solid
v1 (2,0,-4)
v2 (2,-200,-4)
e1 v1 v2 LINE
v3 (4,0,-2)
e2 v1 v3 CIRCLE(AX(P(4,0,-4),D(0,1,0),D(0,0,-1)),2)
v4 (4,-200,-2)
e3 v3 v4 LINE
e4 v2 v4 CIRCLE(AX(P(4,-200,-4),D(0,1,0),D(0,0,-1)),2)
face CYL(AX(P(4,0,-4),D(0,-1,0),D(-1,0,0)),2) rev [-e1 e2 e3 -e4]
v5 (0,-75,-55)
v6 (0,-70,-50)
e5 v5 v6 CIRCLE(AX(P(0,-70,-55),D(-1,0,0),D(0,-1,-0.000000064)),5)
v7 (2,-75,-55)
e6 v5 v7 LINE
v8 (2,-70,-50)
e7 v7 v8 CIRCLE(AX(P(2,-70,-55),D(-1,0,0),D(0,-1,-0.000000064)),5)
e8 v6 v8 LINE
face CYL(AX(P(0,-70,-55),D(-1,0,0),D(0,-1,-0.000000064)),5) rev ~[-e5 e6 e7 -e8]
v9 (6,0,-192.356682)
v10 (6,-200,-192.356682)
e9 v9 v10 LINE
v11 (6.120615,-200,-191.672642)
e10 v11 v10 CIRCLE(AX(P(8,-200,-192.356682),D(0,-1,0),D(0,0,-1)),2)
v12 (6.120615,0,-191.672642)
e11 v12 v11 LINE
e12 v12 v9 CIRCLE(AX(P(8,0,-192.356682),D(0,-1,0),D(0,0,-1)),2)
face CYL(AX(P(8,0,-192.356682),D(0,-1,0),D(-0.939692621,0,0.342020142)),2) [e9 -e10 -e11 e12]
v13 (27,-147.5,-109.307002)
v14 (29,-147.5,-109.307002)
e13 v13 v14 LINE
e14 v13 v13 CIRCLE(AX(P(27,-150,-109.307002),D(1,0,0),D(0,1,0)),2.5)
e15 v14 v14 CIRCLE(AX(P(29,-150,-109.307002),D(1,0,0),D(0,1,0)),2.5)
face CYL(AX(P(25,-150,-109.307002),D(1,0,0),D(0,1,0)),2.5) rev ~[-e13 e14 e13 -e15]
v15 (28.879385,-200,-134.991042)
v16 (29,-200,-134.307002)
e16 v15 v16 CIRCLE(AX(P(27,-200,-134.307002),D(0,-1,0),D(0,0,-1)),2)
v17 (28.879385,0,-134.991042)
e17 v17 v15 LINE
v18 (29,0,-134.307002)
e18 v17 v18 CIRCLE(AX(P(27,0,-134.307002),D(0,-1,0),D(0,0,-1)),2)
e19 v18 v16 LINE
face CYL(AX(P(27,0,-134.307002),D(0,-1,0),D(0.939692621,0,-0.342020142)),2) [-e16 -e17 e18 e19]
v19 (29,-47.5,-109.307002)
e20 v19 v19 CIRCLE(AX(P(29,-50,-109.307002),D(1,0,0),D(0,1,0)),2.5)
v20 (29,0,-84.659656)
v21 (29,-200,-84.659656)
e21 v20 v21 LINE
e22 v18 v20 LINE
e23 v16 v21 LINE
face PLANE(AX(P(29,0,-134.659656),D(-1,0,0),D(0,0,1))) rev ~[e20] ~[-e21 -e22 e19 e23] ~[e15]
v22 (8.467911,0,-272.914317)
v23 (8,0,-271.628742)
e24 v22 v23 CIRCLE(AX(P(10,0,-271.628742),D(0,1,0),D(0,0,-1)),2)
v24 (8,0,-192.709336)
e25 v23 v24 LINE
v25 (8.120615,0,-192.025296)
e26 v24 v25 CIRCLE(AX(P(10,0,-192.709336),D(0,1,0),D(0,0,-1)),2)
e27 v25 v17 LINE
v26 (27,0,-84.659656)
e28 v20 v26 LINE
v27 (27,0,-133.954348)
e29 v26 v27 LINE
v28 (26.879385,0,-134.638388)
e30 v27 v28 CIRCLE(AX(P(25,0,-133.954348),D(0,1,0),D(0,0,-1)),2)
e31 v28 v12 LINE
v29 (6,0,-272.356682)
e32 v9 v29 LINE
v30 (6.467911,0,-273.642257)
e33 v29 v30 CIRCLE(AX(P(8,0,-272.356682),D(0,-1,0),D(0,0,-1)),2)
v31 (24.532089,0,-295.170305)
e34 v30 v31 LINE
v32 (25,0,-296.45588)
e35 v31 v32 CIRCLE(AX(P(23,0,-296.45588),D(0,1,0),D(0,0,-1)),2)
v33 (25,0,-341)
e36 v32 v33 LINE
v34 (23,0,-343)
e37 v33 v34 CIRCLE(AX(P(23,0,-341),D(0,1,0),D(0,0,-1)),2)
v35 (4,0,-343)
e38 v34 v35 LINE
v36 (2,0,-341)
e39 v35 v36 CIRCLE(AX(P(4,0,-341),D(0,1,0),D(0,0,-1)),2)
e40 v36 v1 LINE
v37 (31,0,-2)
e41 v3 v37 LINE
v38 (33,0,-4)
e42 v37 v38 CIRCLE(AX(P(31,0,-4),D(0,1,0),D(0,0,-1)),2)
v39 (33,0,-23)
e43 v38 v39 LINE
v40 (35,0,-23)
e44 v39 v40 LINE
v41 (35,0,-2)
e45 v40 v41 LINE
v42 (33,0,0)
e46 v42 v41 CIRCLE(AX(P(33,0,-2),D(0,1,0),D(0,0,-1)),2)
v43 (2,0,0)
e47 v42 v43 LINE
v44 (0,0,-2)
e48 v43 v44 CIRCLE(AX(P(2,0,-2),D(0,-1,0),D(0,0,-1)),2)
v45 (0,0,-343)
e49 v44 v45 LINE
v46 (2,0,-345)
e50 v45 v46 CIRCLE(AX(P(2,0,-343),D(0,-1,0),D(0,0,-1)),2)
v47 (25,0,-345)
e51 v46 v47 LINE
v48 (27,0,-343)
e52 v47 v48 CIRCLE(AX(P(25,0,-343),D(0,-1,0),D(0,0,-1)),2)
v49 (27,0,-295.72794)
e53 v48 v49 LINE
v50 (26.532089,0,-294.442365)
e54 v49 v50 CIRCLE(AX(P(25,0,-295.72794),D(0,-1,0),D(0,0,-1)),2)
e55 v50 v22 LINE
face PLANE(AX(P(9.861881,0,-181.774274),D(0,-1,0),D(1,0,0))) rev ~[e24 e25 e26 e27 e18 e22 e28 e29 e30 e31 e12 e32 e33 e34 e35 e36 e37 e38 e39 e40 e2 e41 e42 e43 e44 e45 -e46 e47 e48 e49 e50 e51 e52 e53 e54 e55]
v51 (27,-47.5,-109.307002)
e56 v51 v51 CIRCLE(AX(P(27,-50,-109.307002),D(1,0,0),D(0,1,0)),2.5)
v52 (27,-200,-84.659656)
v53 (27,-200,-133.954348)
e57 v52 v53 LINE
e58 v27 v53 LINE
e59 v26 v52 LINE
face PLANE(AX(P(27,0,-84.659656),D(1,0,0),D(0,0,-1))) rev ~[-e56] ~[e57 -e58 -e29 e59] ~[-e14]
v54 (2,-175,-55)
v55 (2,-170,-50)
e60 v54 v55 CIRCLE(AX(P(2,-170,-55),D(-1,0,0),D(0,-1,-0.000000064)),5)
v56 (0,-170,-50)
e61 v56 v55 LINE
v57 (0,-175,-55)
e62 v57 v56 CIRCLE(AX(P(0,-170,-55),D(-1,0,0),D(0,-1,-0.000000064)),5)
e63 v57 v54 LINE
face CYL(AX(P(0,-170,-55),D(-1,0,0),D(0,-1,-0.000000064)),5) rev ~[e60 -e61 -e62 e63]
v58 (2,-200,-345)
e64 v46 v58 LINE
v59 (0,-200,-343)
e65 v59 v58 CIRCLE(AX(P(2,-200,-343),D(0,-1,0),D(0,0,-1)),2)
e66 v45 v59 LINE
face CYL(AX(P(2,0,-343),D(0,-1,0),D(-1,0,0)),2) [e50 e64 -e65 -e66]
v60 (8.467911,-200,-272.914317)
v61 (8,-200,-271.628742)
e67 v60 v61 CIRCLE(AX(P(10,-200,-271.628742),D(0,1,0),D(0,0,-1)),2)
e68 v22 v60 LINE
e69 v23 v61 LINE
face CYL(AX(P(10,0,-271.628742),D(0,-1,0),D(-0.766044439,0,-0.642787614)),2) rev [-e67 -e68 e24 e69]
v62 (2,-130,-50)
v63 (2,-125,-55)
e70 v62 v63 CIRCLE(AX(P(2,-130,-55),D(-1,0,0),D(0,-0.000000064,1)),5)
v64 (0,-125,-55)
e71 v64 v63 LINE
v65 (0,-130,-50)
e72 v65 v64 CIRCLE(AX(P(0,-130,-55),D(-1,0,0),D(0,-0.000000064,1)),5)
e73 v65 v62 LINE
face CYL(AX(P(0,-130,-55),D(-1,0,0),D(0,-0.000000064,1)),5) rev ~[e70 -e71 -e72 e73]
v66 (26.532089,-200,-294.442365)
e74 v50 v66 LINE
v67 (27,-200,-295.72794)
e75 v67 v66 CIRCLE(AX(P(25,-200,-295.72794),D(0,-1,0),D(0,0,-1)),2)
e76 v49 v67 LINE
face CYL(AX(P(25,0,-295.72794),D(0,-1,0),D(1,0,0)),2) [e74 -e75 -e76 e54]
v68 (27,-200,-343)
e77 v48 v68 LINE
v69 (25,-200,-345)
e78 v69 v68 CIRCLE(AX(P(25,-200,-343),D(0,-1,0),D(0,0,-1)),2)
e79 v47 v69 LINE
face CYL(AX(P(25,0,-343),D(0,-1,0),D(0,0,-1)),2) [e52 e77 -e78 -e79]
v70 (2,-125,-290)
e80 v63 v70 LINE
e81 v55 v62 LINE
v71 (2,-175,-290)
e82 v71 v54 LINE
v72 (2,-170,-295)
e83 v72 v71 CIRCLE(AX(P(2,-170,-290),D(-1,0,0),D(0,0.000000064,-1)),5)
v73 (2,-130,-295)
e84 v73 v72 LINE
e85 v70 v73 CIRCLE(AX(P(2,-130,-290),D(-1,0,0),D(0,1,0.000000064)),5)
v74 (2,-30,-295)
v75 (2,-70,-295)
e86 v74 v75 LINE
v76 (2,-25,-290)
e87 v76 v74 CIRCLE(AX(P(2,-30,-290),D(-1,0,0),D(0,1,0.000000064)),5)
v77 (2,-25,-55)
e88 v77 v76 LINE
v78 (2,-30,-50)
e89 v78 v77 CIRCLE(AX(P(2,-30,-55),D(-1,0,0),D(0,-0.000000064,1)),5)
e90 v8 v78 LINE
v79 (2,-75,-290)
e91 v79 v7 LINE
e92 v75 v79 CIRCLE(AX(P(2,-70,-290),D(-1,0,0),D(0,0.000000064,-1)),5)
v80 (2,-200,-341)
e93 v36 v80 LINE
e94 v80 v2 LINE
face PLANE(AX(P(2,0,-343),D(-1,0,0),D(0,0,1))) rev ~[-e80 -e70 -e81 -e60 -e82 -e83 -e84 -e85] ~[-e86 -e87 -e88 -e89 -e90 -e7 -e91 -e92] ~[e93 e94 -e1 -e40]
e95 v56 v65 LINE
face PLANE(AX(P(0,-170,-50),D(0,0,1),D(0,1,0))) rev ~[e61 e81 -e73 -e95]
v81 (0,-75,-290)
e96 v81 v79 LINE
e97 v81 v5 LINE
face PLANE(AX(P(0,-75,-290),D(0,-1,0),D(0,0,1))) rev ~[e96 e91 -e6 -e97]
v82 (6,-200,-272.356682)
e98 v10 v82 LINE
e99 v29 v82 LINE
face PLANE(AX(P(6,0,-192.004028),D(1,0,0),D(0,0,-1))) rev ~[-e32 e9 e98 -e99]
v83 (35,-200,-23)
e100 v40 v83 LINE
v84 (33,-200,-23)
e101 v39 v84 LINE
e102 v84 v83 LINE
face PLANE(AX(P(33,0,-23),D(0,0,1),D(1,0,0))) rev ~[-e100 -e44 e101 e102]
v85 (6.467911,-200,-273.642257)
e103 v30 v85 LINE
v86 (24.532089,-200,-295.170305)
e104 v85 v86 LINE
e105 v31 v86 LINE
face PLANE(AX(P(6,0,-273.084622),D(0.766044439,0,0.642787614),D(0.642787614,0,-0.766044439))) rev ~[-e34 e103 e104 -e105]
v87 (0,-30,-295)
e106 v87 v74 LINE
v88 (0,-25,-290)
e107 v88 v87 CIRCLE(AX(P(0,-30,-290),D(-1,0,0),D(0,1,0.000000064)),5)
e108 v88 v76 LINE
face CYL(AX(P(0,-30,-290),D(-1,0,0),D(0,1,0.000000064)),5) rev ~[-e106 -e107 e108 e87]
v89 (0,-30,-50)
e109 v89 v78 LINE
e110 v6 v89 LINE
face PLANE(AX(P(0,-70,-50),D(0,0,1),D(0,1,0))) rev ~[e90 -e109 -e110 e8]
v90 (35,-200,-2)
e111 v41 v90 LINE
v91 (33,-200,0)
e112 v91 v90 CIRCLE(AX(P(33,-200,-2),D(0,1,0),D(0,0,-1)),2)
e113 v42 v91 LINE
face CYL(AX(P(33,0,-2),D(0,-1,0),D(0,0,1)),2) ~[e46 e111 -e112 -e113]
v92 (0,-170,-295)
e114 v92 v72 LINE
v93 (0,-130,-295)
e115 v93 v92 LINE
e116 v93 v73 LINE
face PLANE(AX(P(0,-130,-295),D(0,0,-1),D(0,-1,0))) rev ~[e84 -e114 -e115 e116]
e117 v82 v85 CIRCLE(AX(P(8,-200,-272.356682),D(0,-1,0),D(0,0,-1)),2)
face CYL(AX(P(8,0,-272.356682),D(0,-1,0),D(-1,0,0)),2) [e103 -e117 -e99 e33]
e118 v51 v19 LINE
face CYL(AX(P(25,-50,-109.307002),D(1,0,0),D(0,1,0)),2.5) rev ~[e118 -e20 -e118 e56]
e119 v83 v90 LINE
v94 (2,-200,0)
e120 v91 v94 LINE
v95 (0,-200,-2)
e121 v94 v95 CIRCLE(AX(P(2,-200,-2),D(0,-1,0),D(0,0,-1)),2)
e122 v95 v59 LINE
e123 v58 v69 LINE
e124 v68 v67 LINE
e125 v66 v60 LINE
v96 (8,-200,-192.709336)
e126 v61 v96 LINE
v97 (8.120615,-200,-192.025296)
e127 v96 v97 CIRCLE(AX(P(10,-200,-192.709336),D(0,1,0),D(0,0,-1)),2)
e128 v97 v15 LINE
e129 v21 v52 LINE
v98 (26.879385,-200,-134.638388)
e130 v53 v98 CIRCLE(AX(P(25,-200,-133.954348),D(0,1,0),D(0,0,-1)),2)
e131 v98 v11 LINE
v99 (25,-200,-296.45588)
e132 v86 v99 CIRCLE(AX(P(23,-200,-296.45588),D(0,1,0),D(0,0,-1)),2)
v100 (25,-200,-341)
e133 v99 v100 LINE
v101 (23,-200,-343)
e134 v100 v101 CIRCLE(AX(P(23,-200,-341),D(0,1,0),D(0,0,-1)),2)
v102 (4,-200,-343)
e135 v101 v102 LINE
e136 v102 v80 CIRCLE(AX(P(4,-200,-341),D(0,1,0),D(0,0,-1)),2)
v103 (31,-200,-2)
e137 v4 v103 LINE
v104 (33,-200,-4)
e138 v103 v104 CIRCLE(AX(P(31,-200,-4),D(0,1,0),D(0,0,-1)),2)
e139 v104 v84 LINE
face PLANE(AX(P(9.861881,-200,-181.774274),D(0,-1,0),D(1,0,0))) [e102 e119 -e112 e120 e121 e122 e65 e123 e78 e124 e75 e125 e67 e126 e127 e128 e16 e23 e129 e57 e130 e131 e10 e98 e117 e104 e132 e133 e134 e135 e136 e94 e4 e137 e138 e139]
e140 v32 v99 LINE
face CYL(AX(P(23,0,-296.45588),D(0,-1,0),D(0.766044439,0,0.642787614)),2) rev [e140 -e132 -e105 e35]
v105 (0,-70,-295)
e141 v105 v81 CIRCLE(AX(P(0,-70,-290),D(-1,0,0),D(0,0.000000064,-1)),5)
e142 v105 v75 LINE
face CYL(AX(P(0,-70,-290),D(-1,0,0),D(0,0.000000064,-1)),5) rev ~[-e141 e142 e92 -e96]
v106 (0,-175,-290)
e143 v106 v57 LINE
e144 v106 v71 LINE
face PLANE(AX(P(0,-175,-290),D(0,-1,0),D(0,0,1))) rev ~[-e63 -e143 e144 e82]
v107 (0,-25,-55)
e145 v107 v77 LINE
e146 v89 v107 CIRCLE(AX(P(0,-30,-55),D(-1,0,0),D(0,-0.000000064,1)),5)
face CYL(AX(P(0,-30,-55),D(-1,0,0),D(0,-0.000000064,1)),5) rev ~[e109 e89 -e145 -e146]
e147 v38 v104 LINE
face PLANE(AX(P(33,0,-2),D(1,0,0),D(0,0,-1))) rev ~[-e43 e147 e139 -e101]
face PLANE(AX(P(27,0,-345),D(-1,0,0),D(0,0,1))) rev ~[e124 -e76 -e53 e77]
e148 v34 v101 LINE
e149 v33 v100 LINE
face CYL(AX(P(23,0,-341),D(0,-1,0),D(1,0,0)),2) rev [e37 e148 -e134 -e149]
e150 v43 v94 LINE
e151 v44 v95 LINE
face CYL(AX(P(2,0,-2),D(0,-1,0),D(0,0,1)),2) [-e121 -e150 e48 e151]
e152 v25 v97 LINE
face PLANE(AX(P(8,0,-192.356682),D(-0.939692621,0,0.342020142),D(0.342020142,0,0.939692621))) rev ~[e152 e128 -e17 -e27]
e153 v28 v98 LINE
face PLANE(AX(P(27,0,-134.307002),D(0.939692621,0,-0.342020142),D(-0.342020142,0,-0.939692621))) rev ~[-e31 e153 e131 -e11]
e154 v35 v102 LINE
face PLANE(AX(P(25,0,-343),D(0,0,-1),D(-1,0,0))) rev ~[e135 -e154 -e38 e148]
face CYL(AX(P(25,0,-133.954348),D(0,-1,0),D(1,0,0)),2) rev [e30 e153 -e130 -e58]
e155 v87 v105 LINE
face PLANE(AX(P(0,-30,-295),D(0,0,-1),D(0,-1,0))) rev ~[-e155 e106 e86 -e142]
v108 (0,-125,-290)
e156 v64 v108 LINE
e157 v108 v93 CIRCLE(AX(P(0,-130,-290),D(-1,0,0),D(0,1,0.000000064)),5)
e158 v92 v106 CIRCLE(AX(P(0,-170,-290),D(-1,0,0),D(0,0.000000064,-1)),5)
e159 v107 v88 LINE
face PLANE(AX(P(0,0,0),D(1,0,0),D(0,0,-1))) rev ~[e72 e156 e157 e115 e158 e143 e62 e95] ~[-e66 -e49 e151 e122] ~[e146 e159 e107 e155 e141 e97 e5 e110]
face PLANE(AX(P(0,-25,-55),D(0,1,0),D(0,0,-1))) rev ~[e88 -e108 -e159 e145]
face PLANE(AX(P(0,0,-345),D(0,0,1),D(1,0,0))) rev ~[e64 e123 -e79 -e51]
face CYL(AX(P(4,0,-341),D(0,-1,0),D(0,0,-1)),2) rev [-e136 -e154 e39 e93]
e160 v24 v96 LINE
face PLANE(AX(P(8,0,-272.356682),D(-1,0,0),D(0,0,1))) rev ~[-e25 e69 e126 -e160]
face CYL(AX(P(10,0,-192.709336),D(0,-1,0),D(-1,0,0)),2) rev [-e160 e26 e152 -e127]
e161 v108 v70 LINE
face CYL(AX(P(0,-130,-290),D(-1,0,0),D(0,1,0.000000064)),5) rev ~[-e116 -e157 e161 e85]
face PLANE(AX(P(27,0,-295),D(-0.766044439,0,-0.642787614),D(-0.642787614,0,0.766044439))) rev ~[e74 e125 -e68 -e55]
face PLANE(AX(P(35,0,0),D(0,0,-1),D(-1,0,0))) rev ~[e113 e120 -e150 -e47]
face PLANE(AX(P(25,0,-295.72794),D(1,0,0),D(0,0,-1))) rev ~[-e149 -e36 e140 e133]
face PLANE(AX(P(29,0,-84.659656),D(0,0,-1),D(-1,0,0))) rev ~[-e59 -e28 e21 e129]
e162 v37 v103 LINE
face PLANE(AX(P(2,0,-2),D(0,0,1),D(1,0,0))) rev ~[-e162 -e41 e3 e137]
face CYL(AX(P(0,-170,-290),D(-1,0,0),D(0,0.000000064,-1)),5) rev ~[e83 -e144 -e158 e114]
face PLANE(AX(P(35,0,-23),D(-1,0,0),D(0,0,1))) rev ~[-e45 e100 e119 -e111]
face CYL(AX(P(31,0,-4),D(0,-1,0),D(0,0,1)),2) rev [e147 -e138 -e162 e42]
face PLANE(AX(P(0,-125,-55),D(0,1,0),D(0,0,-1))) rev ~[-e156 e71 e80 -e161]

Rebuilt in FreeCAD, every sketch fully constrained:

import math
import FreeCAD as App
import Part
import Sketcher
from FreeCAD import Vector
Q = App.Units.Quantity


def edges_at(feature, points):
    """Names of the edges that pass closest to the given points."""
    edges = feature.Shape.Edges
    near = lambda p: min(range(len(edges)), key=lambda i: edges[i].distToShape(Part.Vertex(*p))[0])
    return sorted({f"Edge{near(p) + 1}" for p in points})


def add_polygon(sketch, points):
    """Adds a closed chain of lines whose ends are joined by coincident constraints."""
    first, n = sketch.GeometryCount, len(points)
    for a, b in zip(points, points[1:] + points[:1]):
        sketch.addGeometry(Part.LineSegment(App.Vector(*a, 0), App.Vector(*b, 0)), False)
    for i in range(n):
        sketch.addConstraint(Sketcher.Constraint("Coincident", first + i, 2, first + (i + 1) % n, 1))

doc = App.newDocument("Part")
body = doc.addObject("PartDesign::Body", "Body")

sketch1 = doc.addObject("Sketcher::SketchObject", "Sketch")
body.addObject(sketch1)
sketch1.AttachmentSupport = (doc.XZ_Plane, [""])
sketch1.MapMode = "FlatFace"
add_polygon(sketch1, [(35, 0), (0, 0), (0, -345), (27, -345), (27, -295), (8, -272.4), (8, -192.4), (29, -134.7), (29, -84.7), (27, -84.7), (27, -134.3), (6, -192), (6, -273.1), (25, -295.7), (25, -343), (2, -343), (2, -2), (33, -2), (33, -23), (35, -23)])
sketch1.addConstraint(Sketcher.Constraint("Horizontal", 0))
sketch1.addConstraint(Sketcher.Constraint("Vertical", 1))
sketch1.addConstraint(Sketcher.Constraint("Horizontal", 2))
sketch1.addConstraint(Sketcher.Constraint("Vertical", 3))
sketch1.addConstraint(Sketcher.Constraint("Vertical", 5))
sketch1.addConstraint(Sketcher.Constraint("Vertical", 7))
sketch1.addConstraint(Sketcher.Constraint("Horizontal", 8))
sketch1.addConstraint(Sketcher.Constraint("Vertical", 9))
sketch1.addConstraint(Sketcher.Constraint("Vertical", 11))
sketch1.addConstraint(Sketcher.Constraint("Vertical", 13))
sketch1.addConstraint(Sketcher.Constraint("Horizontal", 14))
sketch1.addConstraint(Sketcher.Constraint("Vertical", 15))
sketch1.addConstraint(Sketcher.Constraint("Horizontal", 16))
sketch1.addConstraint(Sketcher.Constraint("Vertical", 17))
sketch1.addConstraint(Sketcher.Constraint("Horizontal", 18))
sketch1.addConstraint(Sketcher.Constraint("Vertical", 19))
sketch1.addConstraint(Sketcher.Constraint("Coincident", 0, 2, -1, 1))
sketch1.addConstraint(Sketcher.Constraint("Parallel", 6, 10))
sketch1.addConstraint(Sketcher.Constraint("Parallel", 4, 12))
sketch1.addConstraint(Sketcher.Constraint("Vertical", 3, 2, 8, 2))
sketch1.addConstraint(Sketcher.Constraint("Equal", 8, 18))
sketch1.addConstraint(Sketcher.Constraint("Equal", 3, 7))
sketch1.addConstraint(Sketcher.Constraint("Equal", 14, 19))
sketch1.addConstraint(Sketcher.Constraint("Equal", 6, 10))
sketch1.addConstraint(Sketcher.Constraint("Equal", 4, 12))
sketch1.addConstraint(Sketcher.Constraint("DistanceX", 0, 2, 0, 1, 35.0))
sketch1.addConstraint(Sketcher.Constraint("DistanceX", 2, 1, 2, 2, 27.0))
sketch1.addConstraint(Sketcher.Constraint("DistanceX", 8, 2, 8, 1, 2.0))
sketch1.addConstraint(Sketcher.Constraint("DistanceX", 14, 2, 14, 1, 23.0))
sketch1.addConstraint(Sketcher.Constraint("DistanceY", 1, 2, 1, 1, 345.0))
sketch1.addConstraint(Sketcher.Constraint("DistanceY", 3, 1, 3, 2, 50.0))
sketch1.addConstraint(Sketcher.Constraint("DistanceY", 5, 1, 5, 2, 80.0))
sketch1.addConstraint(Sketcher.Constraint("DistanceY", 15, 1, 15, 2, 341.0))
sketch1.addConstraint(Sketcher.Constraint("DistanceY", 17, 2, 17, 1, 21.0))
sketch1.addConstraint(Sketcher.Constraint("Angle", 4, Q("130 deg")))
sketch1.addConstraint(Sketcher.Constraint("Angle", 6, Q("70 deg")))
sketch1.addConstraint(Sketcher.Constraint("DistanceX", -1, 1, 4, 2, 8.0))
sketch1.addConstraint(Sketcher.Constraint("DistanceY", 13, 2, 13, 1, 47.27206))
sketch1.addConstraint(Sketcher.Constraint("DistanceY", 9, 2, 9, 1, 49.647346))
pad1 = doc.addObject("PartDesign::Pad", "Pad")
body.addObject(pad1)
pad1.Profile = sketch1
pad1.Length = 200
doc.recompute()

fillet = doc.addObject("PartDesign::Fillet", "Fillet")
body.addObject(fillet)
fillet.Base = (pad1, edges_at(pad1, [
    (0, -100, 0),
    (35, -100, 0),
    (33, -100, -2),
    (2, -100, -2),
    (0, -100, -345),
    (2, -100, -343),
    (27, -100, -345),
    (25, -100, -343),
    (25, -100, -295.728),
    (27, -100, -295),
    (8, -100, -272.357),
    (6, -100, -273.085),
    (6, -100, -192.004),
    (8, -100, -192.357),
    (29, -100, -134.66),
    (27, -100, -134.307),
]))
fillet.Radius = 2

sketch2 = doc.addObject("Sketcher::SketchObject", "Sketch001")
body.addObject(sketch2)
sketch2.AttachmentSupport = (doc.YZ_Plane, [""])
sketch2.MapMode = "FlatFace"
sketch2.addGeometry(Part.LineSegment(Vector(-70, -50, 0), Vector(-30, -50, 0)), False)
sketch2.addGeometry(Part.ArcOfCircle(Part.Circle(Vector(-30, -55, 0), Vector(0, 0, 1), 5), math.radians(0), math.radians(90)), False)
sketch2.addGeometry(Part.LineSegment(Vector(-25, -55, 0), Vector(-25, -290, 0)), False)
sketch2.addGeometry(Part.ArcOfCircle(Part.Circle(Vector(-30, -290, 0), Vector(0, 0, 1), 5), math.radians(-90), math.radians(0)), False)
sketch2.addGeometry(Part.LineSegment(Vector(-30, -295, 0), Vector(-70, -295, 0)), False)
sketch2.addGeometry(Part.ArcOfCircle(Part.Circle(Vector(-70, -290, 0), Vector(0, 0, 1), 5), math.radians(180), math.radians(270)), False)
sketch2.addGeometry(Part.LineSegment(Vector(-75, -290, 0), Vector(-75, -55, 0)), False)
sketch2.addGeometry(Part.ArcOfCircle(Part.Circle(Vector(-70, -55, 0), Vector(0, 0, 1), 5), math.radians(90), math.radians(180)), False)
sketch2.addGeometry(Part.ArcOfCircle(Part.Circle(Vector(-130, -55, 0), Vector(0, 0, 1), 5), math.radians(0), math.radians(90)), False)
sketch2.addGeometry(Part.LineSegment(Vector(-125, -55, 0), Vector(-125, -290, 0)), False)
sketch2.addGeometry(Part.ArcOfCircle(Part.Circle(Vector(-130, -290, 0), Vector(0, 0, 1), 5), math.radians(-90), math.radians(0)), False)
sketch2.addGeometry(Part.LineSegment(Vector(-130, -295, 0), Vector(-170, -295, 0)), False)
sketch2.addGeometry(Part.ArcOfCircle(Part.Circle(Vector(-170, -290, 0), Vector(0, 0, 1), 5), math.radians(180), math.radians(270)), False)
sketch2.addGeometry(Part.LineSegment(Vector(-175, -290, 0), Vector(-175, -55, 0)), False)
sketch2.addGeometry(Part.ArcOfCircle(Part.Circle(Vector(-170, -55, 0), Vector(0, 0, 1), 5), math.radians(90), math.radians(180)), False)
sketch2.addGeometry(Part.LineSegment(Vector(-170, -50, 0), Vector(-130, -50, 0)), False)
sketch2.addConstraint(Sketcher.Constraint("Tangent", 0, 2, 1, 2))
sketch2.addConstraint(Sketcher.Constraint("Tangent", 1, 1, 2, 1))
sketch2.addConstraint(Sketcher.Constraint("Tangent", 2, 2, 3, 2))
sketch2.addConstraint(Sketcher.Constraint("Tangent", 3, 1, 4, 1))
sketch2.addConstraint(Sketcher.Constraint("Tangent", 4, 2, 5, 2))
sketch2.addConstraint(Sketcher.Constraint("Tangent", 5, 1, 6, 1))
sketch2.addConstraint(Sketcher.Constraint("Tangent", 6, 2, 7, 2))
sketch2.addConstraint(Sketcher.Constraint("Tangent", 7, 1, 0, 1))
sketch2.addConstraint(Sketcher.Constraint("Tangent", 8, 1, 9, 1))
sketch2.addConstraint(Sketcher.Constraint("Tangent", 9, 2, 10, 2))
sketch2.addConstraint(Sketcher.Constraint("Tangent", 10, 1, 11, 1))
sketch2.addConstraint(Sketcher.Constraint("Tangent", 11, 2, 12, 2))
sketch2.addConstraint(Sketcher.Constraint("Tangent", 12, 1, 13, 1))
sketch2.addConstraint(Sketcher.Constraint("Tangent", 13, 2, 14, 2))
sketch2.addConstraint(Sketcher.Constraint("Tangent", 14, 1, 15, 1))
sketch2.addConstraint(Sketcher.Constraint("Tangent", 15, 2, 8, 2))
sketch2.addConstraint(Sketcher.Constraint("Horizontal", 0))
sketch2.addConstraint(Sketcher.Constraint("Vertical", 2))
sketch2.addConstraint(Sketcher.Constraint("Horizontal", 4))
sketch2.addConstraint(Sketcher.Constraint("Vertical", 6))
sketch2.addConstraint(Sketcher.Constraint("Vertical", 9))
sketch2.addConstraint(Sketcher.Constraint("Horizontal", 11))
sketch2.addConstraint(Sketcher.Constraint("Vertical", 13))
sketch2.addConstraint(Sketcher.Constraint("Horizontal", 15))
sketch2.addConstraint(Sketcher.Constraint("Equal", 1, 3))
sketch2.addConstraint(Sketcher.Constraint("Equal", 3, 5))
sketch2.addConstraint(Sketcher.Constraint("Equal", 5, 7))
sketch2.addConstraint(Sketcher.Constraint("Equal", 7, 8))
sketch2.addConstraint(Sketcher.Constraint("Equal", 8, 10))
sketch2.addConstraint(Sketcher.Constraint("Equal", 10, 12))
sketch2.addConstraint(Sketcher.Constraint("Equal", 12, 14))
sketch2.addConstraint(Sketcher.Constraint("Horizontal", 7, 3, 8, 3))
sketch2.addConstraint(Sketcher.Constraint("Horizontal", 5, 3, 10, 3))
sketch2.addConstraint(Sketcher.Constraint("Equal", 4, 11))
sketch2.addConstraint(Sketcher.Constraint("Radius", 1, 5.0))
sketch2.addConstraint(Sketcher.Constraint("DistanceX", 0, 1, 0, 2, 40.0))
sketch2.addConstraint(Sketcher.Constraint("DistanceY", 2, 2, 2, 1, 235.0))
sketch2.addConstraint(Sketcher.Constraint("DistanceX", 1, 3, -1, 1, 30.0))
sketch2.addConstraint(Sketcher.Constraint("DistanceY", 1, 3, -1, 1, 55.0))
sketch2.addConstraint(Sketcher.Constraint("DistanceX", 8, 3, -1, 1, 130.0))
pocket1 = doc.addObject("PartDesign::Pocket", "Pocket")
body.addObject(pocket1)
pocket1.Profile = sketch2
pocket1.Length = 4
pocket1.Reversed = True

sketch3 = doc.addObject("Sketcher::SketchObject", "Sketch002")
body.addObject(sketch3)
sketch3.AttachmentSupport = (doc.YZ_Plane, [""])
sketch3.MapMode = "FlatFace"
sketch3.AttachmentOffset = App.Placement(Vector(0, 0, 27), App.Rotation())
sketch3.addGeometry(Part.Circle(Vector(-50, -109.3, 0), Vector(0, 0, 1), 2.5), False)
sketch3.addGeometry(Part.Circle(Vector(-150, -109.3, 0), Vector(0, 0, 1), 2.5), False)
sketch3.addConstraint(Sketcher.Constraint("Equal", 0, 1))
sketch3.addConstraint(Sketcher.Constraint("Horizontal", 0, 3, 1, 3))
sketch3.addConstraint(Sketcher.Constraint("Diameter", 0, 5.0))
sketch3.addConstraint(Sketcher.Constraint("DistanceX", 0, 3, -1, 1, 50.0))
sketch3.addConstraint(Sketcher.Constraint("DistanceX", 1, 3, -1, 1, 150.0))
sketch3.addConstraint(Sketcher.Constraint("DistanceY", 0, 3, -1, 1, 109.307002))
doc.recompute()
hole = doc.addObject("PartDesign::Hole", "Hole")
body.addObject(hole)
hole.Profile = sketch3
hole.ThreadType = "None"
hole.Diameter = 5
hole.DepthType = "Dimension"
hole.Depth = 2
hole.DrillPoint = "Flat"
hole.Reversed = True

doc.recompute()
